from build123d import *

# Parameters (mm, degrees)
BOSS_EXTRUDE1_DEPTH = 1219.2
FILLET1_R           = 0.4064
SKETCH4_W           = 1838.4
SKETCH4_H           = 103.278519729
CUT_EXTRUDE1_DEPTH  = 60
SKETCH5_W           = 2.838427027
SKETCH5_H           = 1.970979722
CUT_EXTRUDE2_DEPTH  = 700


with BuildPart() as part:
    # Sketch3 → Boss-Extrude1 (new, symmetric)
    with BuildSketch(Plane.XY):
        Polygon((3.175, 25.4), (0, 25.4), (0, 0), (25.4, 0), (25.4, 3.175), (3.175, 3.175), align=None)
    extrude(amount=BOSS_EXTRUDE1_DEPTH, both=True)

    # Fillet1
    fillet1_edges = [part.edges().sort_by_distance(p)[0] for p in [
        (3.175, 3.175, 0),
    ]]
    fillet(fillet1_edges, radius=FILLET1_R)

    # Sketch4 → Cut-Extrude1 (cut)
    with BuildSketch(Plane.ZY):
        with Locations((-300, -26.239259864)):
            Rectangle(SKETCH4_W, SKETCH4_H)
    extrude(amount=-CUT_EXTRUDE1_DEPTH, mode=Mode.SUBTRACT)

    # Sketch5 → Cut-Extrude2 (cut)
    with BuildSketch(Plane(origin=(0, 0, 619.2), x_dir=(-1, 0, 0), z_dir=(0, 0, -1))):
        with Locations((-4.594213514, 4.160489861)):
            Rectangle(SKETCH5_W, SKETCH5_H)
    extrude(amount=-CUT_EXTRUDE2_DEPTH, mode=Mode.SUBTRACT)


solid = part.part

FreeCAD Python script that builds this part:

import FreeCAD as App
import Part
import Sketcher
Q = App.Units.Quantity


def edges_at(feature, points):
    """Names of the edges that pass closest to the given points."""
    edges = feature.Shape.Edges
    near = lambda p: min(range(len(edges)), key=lambda i: edges[i].distToShape(Part.Vertex(*p))[0])
    return sorted({f"Edge{near(p) + 1}" for p in points})


def add_polygon(sketch, points):
    """Adds a closed chain of lines whose ends are joined by coincident constraints."""
    first, n = sketch.GeometryCount, len(points)
    for a, b in zip(points, points[1:] + points[:1]):
        sketch.addGeometry(Part.LineSegment(App.Vector(*a, 0), App.Vector(*b, 0)), False)
    for i in range(n):
        sketch.addConstraint(Sketcher.Constraint("Coincident", first + i, 2, first + (i + 1) % n, 1))

doc = App.newDocument("Part")
body = doc.addObject("PartDesign::Body", "Body")

# Sketch on XY plane
sketch1 = body.newObject("Sketcher::SketchObject", "Sketch")
sketch1.AttachmentSupport = (doc.getObject("XY_Plane"), [""])
sketch1.MapMode = "FlatFace"
add_polygon(sketch1, [(3.175, 25.4), (0, 25.4), (0, 0), (25.4, 0), (25.4, 3.175), (3.175, 3.175)])  # lines 0-5
sketch1.addConstraint(Sketcher.Constraint("Horizontal", 0))
sketch1.addConstraint(Sketcher.Constraint("Vertical", 1))
sketch1.addConstraint(Sketcher.Constraint("Horizontal", 2))
sketch1.addConstraint(Sketcher.Constraint("Vertical", 3))
sketch1.addConstraint(Sketcher.Constraint("Horizontal", 4))
sketch1.addConstraint(Sketcher.Constraint("Vertical", 5))
sketch1.addConstraint(Sketcher.Constraint("Coincident", 1, 2, -1, 1))
sketch1.addConstraint(Sketcher.Constraint("Equal", 2, 1))
sketch1.addConstraint(Sketcher.Constraint("Equal", 0, 3))
sketch1.addConstraint(Sketcher.Constraint("DistanceX", 2, 1, 2, 2, Q("1 in")))
sketch1.addConstraint(Sketcher.Constraint("DistanceX", 0, 2, 0, 1, Q("0.125 in")))
pad1 = body.newObject("PartDesign::Pad", "Pad")
pad1.Profile = sketch1
pad1.Length = Q("96 in")
pad1.Midplane = True
doc.recompute()

fillet = body.newObject("PartDesign::Fillet", "Fillet")
fillet.Base = (pad1, edges_at(pad1, [(3.175, 3.175, 0)]))
fillet.Radius = Q("0.016 in")

# Sketch on YZ plane
sketch2 = body.newObject("Sketcher::SketchObject", "Sketch001")
sketch2.AttachmentSupport = (doc.getObject("YZ_Plane"), [""])
sketch2.MapMode = "FlatFace"
add_polygon(sketch2, [(25.4, -1219.2), (-77.87852, -1219.2), (-77.87852, 619.2), (25.4, 619.2)])  # lines 0-3
sketch2.addConstraint(Sketcher.Constraint("Horizontal", 0))
sketch2.addConstraint(Sketcher.Constraint("Vertical", 1))
sketch2.addConstraint(Sketcher.Constraint("Horizontal", 2))
sketch2.addConstraint(Sketcher.Constraint("Vertical", 3))
sketch2.addConstraint(Sketcher.Constraint("DistanceY", 0, 2, -1, 1, Q("48 in")))
sketch2.addConstraint(Sketcher.Constraint("DistanceX", -1, 1, 2, 2, Q("1 in")))
sketch2.addConstraint(Sketcher.Constraint("DistanceY", 1, 1, 1, 2, 1838.4))
sketch2.addConstraint(Sketcher.Constraint("DistanceX", 0, 2, 0, 1, 103.27852))
pocket1 = body.newObject("PartDesign::Pocket", "Pocket")
pocket1.Profile = sketch2
pocket1.Length = 60
pocket1.Reversed = True

# Sketch on XY plane
sketch3 = body.newObject("Sketcher::SketchObject", "Sketch002")
sketch3.AttachmentSupport = (doc.getObject("XY_Plane"), [""])
sketch3.MapMode = "FlatFace"
sketch3.AttachmentOffset = App.Placement(App.Vector(0, 0, 619.2), App.Rotation())
add_polygon(sketch3, [(6.013427, 5.14598), (6.013427, 3.175), (3.175, 3.175), (3.175, 5.14598)])  # lines 0-3
sketch3.addConstraint(Sketcher.Constraint("Vertical", 0))
sketch3.addConstraint(Sketcher.Constraint("Horizontal", 1))
sketch3.addConstraint(Sketcher.Constraint("Vertical", 2))
sketch3.addConstraint(Sketcher.Constraint("Horizontal", 3))
sketch3.addConstraint(Sketcher.Constraint("DistanceY", -1, 1, 0, 2, Q("0.125 in")))
sketch3.addConstraint(Sketcher.Constraint("DistanceX", -1, 1, 1, 2, Q("0.125 in")))
sketch3.addConstraint(Sketcher.Constraint("DistanceY", 0, 2, 0, 1, 1.97098))
sketch3.addConstraint(Sketcher.Constraint("DistanceX", 1, 2, 1, 1, 2.838427))
pocket2 = body.newObject("PartDesign::Pocket", "Pocket001")
pocket2.Profile = sketch3
pocket2.Length = 700
pocket2.Reversed = True

doc.recompute()
